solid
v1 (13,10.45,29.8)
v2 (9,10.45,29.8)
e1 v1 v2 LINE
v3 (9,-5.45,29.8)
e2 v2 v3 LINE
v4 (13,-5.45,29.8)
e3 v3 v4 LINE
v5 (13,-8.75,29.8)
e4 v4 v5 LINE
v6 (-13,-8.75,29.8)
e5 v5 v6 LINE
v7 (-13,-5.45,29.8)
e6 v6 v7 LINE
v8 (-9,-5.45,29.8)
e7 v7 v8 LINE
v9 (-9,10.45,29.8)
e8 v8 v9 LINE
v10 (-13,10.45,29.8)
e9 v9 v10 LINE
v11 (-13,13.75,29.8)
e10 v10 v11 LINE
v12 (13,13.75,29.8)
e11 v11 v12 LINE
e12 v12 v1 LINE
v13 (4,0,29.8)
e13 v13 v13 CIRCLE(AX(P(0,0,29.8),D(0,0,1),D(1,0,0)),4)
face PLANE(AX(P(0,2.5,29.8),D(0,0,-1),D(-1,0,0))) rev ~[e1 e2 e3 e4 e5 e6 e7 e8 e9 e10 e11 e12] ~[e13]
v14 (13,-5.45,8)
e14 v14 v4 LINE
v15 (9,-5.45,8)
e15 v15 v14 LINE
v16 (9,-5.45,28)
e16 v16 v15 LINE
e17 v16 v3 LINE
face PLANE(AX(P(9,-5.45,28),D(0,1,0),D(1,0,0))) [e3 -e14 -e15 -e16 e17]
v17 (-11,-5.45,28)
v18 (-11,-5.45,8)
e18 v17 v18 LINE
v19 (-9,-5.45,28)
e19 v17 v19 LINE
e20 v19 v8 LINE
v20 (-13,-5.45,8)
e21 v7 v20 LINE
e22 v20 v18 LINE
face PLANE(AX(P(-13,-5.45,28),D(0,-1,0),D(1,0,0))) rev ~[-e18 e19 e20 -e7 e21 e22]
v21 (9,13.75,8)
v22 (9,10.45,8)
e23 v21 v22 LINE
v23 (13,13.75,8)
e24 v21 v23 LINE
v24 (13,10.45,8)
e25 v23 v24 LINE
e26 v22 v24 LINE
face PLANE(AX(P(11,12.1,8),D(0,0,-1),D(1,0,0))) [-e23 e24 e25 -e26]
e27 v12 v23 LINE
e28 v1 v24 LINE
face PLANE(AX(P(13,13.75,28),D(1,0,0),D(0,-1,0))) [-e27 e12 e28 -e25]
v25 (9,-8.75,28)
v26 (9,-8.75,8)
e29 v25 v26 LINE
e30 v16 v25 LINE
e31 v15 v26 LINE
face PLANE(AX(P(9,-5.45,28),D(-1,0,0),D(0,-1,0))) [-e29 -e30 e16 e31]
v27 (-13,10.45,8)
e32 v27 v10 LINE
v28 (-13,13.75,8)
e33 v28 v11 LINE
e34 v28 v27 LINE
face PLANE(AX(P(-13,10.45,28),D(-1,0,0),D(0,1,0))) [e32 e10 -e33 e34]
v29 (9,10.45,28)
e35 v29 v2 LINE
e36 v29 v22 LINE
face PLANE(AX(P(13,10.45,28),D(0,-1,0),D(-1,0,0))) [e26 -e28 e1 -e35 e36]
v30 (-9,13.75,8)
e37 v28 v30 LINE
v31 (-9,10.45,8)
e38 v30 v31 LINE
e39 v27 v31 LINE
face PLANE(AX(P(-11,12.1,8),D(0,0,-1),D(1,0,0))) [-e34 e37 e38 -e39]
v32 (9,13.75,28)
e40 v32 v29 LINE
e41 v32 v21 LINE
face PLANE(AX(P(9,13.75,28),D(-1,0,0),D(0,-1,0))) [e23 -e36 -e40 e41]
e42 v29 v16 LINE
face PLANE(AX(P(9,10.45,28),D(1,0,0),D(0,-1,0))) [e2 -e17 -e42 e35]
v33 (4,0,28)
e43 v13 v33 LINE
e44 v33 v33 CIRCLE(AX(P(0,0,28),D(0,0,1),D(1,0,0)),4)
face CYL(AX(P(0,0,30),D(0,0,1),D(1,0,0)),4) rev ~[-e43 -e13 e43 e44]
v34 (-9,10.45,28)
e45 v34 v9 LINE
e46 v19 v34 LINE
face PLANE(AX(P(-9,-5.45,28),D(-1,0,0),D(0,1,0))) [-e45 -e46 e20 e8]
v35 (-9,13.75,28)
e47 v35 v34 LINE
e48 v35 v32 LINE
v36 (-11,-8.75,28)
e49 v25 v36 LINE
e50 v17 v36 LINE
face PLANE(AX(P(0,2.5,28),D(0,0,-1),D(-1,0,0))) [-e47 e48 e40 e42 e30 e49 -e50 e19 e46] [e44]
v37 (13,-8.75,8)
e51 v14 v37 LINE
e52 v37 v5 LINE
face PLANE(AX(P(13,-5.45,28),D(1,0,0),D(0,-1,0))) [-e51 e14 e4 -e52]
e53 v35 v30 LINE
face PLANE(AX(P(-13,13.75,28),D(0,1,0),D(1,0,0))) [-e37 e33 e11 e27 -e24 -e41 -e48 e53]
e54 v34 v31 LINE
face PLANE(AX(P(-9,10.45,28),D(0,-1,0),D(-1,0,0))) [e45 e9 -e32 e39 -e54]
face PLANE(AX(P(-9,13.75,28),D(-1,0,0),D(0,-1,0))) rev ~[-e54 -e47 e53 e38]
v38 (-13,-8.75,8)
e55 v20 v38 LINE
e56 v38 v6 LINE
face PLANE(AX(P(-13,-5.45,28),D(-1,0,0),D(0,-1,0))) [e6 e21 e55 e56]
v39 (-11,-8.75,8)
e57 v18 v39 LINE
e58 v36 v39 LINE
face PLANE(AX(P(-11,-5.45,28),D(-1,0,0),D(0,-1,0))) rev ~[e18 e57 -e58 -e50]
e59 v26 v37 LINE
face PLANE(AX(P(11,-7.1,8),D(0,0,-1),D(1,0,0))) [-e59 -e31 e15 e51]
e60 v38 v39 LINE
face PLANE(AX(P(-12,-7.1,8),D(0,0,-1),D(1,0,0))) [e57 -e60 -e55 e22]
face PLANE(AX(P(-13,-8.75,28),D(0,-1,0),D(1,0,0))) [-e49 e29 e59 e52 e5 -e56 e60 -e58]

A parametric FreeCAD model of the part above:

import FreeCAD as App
import Part
import Sketcher


def add_polygon(sketch, points):
    """Adds a closed chain of lines whose ends are joined by coincident constraints."""
    first, n = sketch.GeometryCount, len(points)
    for a, b in zip(points, points[1:] + points[:1]):
        sketch.addGeometry(Part.LineSegment(App.Vector(*a, 0), App.Vector(*b, 0)), False)
    for i in range(n):
        sketch.addConstraint(Sketcher.Constraint("Coincident", first + i, 2, first + (i + 1) % n, 1))

doc = App.newDocument("Part")
body = doc.addObject("PartDesign::Body", "Body")

sketch1 = body.newObject("Sketcher::SketchObject", "Sketch")
sketch1.AttachmentSupport = (doc.getObject("XY_Plane"), [""])
sketch1.MapMode = "FlatFace"
add_polygon(sketch1, [(13, 13.8), (-13, 13.8), (-13, 10.4), (-9, 10.4), (-9, -5.5), (-13, -5.5), (-13, -8.8), (13, -8.8), (13, -5.5), (9, -5.5), (9, 10.4), (13, 10.4)])
sketch1.addConstraint([
    Sketcher.Constraint("Horizontal", 0),
    Sketcher.Constraint("Vertical", 1),
    Sketcher.Constraint("Horizontal", 2),
    Sketcher.Constraint("Vertical", 3),
    Sketcher.Constraint("Horizontal", 4),
    Sketcher.Constraint("Vertical", 5),
    Sketcher.Constraint("Horizontal", 6),
    Sketcher.Constraint("Vertical", 7),
    Sketcher.Constraint("Horizontal", 8),
    Sketcher.Constraint("Vertical", 9),
    Sketcher.Constraint("Horizontal", 10),
    Sketcher.Constraint("Vertical", 11),
    Sketcher.Constraint("Symmetric", 4, 2, 7, 2, -2),
    Sketcher.Constraint("Symmetric", 2, 2, 9, 2, -2),
    Sketcher.Constraint("Vertical", 1, 2, 4, 2),
    Sketcher.Constraint("Vertical", 7, 2, 10, 2),
    Sketcher.Constraint("Equal", 1, 5),
    Sketcher.Constraint("DistanceX", 0, 2, 0, 1, 26.0),
    Sketcher.Constraint("DistanceX", 2, 1, 2, 2, 4.0),
    Sketcher.Constraint("DistanceY", 1, 2, 1, 1, 3.3),
    Sketcher.Constraint("DistanceY", 3, 2, 3, 1, 15.9),
    Sketcher.Constraint("DistanceY", -1, 1, 0, 2, 13.75),
])
pad1 = body.newObject("PartDesign::Pad", "Pad")
pad1.Profile = sketch1
pad1.Length = 1.8

sketch2 = body.newObject("Sketcher::SketchObject", "Sketch001")
sketch2.AttachmentSupport = (doc.getObject("XY_Plane"), [""])
sketch2.MapMode = "FlatFace"
sketch2.AttachmentOffset = App.Placement(App.Vector(0, 0, 2), App.Rotation())
sketch2.addGeometry(Part.Circle(App.Vector(0, 0, 0), App.Vector(0, 0, 1), 4), False)
sketch2.addConstraint([
    Sketcher.Constraint("Coincident", 0, 3, -1, 1),
    Sketcher.Constraint("Diameter", 0, 8.0),
])
pocket1 = body.newObject("PartDesign::Pocket", "Pocket")
pocket1.Profile = sketch2
pocket1.Length = 5

sketch3 = body.newObject("Sketcher::SketchObject", "Sketch002")
sketch3.AttachmentSupport = (doc.getObject("XY_Plane"), [""])
sketch3.MapMode = "FlatFace"
add_polygon(sketch3, [(-13, -8.8), (-13, -5.5), (-11, -5.5), (-11, -8.8)])
add_polygon(sketch3, [(9, -8.8), (9, -5.5), (13, -5.5), (13, -8.8)])
add_polygon(sketch3, [(9, 10.4), (9, 13.8), (13, 13.8), (13, 10.4)])
add_polygon(sketch3, [(-13, 10.4), (-13, 13.8), (-9, 13.8), (-9, 10.4)])
sketch3.addConstraint([
    Sketcher.Constraint("Vertical", 0),
    Sketcher.Constraint("Horizontal", 1),
    Sketcher.Constraint("Vertical", 2),
    Sketcher.Constraint("Horizontal", 3),
    Sketcher.Constraint("Vertical", 4),
    Sketcher.Constraint("Horizontal", 5),
    Sketcher.Constraint("Vertical", 6),
    Sketcher.Constraint("Horizontal", 7),
    Sketcher.Constraint("Vertical", 8),
    Sketcher.Constraint("Horizontal", 9),
    Sketcher.Constraint("Vertical", 10),
    Sketcher.Constraint("Horizontal", 11),
    Sketcher.Constraint("Vertical", 12),
    Sketcher.Constraint("Horizontal", 13),
    Sketcher.Constraint("Vertical", 14),
    Sketcher.Constraint("Horizontal", 15),
    Sketcher.Constraint("Symmetric", 0, 2, 5, 2, -2),
    Sketcher.Constraint("Symmetric", 9, 2, 12, 2, -2),
    Sketcher.Constraint("Symmetric", 11, 2, 14, 2, -2),
    Sketcher.Constraint("Horizontal", 3, 2, 6, 2),
    Sketcher.Constraint("Vertical", 7, 2, 8, 2),
    Sketcher.Constraint("Vertical", 6, 2, 9, 2),
    Sketcher.Constraint("Equal", 6, 8),
    Sketcher.Constraint("DistanceX", 1, 1, 1, 2, 2.0),
    Sketcher.Constraint("DistanceX", 5, 1, 5, 2, 4.0),
    Sketcher.Constraint("DistanceY", 0, 1, 0, 2, 3.3),
    Sketcher.Constraint("DistanceX", 0, 2, -1, 1, 13.0),
    Sketcher.Constraint("DistanceY", 4, 2, 8, 2, 19.2),
    Sketcher.Constraint("DistanceY", 0, 2, -1, 1, 5.45),
])
pad2 = body.newObject("PartDesign::Pad", "Pad001")
pad2.Profile = sketch3
pad2.Length = 20
pad2.Reversed = True
body2 = doc.addObject("PartDesign::Body", "Body001")
doc.recompute()

body.Placement = App.Placement(App.Vector(0, 0, 28), App.Rotation(App.Vector(0, 0, 1), 0))
boolean = body2.newObject("PartDesign::Boolean", "Boolean")
boolean.Type = "Fuse"
boolean.addObjects([body])

doc.recompute()
